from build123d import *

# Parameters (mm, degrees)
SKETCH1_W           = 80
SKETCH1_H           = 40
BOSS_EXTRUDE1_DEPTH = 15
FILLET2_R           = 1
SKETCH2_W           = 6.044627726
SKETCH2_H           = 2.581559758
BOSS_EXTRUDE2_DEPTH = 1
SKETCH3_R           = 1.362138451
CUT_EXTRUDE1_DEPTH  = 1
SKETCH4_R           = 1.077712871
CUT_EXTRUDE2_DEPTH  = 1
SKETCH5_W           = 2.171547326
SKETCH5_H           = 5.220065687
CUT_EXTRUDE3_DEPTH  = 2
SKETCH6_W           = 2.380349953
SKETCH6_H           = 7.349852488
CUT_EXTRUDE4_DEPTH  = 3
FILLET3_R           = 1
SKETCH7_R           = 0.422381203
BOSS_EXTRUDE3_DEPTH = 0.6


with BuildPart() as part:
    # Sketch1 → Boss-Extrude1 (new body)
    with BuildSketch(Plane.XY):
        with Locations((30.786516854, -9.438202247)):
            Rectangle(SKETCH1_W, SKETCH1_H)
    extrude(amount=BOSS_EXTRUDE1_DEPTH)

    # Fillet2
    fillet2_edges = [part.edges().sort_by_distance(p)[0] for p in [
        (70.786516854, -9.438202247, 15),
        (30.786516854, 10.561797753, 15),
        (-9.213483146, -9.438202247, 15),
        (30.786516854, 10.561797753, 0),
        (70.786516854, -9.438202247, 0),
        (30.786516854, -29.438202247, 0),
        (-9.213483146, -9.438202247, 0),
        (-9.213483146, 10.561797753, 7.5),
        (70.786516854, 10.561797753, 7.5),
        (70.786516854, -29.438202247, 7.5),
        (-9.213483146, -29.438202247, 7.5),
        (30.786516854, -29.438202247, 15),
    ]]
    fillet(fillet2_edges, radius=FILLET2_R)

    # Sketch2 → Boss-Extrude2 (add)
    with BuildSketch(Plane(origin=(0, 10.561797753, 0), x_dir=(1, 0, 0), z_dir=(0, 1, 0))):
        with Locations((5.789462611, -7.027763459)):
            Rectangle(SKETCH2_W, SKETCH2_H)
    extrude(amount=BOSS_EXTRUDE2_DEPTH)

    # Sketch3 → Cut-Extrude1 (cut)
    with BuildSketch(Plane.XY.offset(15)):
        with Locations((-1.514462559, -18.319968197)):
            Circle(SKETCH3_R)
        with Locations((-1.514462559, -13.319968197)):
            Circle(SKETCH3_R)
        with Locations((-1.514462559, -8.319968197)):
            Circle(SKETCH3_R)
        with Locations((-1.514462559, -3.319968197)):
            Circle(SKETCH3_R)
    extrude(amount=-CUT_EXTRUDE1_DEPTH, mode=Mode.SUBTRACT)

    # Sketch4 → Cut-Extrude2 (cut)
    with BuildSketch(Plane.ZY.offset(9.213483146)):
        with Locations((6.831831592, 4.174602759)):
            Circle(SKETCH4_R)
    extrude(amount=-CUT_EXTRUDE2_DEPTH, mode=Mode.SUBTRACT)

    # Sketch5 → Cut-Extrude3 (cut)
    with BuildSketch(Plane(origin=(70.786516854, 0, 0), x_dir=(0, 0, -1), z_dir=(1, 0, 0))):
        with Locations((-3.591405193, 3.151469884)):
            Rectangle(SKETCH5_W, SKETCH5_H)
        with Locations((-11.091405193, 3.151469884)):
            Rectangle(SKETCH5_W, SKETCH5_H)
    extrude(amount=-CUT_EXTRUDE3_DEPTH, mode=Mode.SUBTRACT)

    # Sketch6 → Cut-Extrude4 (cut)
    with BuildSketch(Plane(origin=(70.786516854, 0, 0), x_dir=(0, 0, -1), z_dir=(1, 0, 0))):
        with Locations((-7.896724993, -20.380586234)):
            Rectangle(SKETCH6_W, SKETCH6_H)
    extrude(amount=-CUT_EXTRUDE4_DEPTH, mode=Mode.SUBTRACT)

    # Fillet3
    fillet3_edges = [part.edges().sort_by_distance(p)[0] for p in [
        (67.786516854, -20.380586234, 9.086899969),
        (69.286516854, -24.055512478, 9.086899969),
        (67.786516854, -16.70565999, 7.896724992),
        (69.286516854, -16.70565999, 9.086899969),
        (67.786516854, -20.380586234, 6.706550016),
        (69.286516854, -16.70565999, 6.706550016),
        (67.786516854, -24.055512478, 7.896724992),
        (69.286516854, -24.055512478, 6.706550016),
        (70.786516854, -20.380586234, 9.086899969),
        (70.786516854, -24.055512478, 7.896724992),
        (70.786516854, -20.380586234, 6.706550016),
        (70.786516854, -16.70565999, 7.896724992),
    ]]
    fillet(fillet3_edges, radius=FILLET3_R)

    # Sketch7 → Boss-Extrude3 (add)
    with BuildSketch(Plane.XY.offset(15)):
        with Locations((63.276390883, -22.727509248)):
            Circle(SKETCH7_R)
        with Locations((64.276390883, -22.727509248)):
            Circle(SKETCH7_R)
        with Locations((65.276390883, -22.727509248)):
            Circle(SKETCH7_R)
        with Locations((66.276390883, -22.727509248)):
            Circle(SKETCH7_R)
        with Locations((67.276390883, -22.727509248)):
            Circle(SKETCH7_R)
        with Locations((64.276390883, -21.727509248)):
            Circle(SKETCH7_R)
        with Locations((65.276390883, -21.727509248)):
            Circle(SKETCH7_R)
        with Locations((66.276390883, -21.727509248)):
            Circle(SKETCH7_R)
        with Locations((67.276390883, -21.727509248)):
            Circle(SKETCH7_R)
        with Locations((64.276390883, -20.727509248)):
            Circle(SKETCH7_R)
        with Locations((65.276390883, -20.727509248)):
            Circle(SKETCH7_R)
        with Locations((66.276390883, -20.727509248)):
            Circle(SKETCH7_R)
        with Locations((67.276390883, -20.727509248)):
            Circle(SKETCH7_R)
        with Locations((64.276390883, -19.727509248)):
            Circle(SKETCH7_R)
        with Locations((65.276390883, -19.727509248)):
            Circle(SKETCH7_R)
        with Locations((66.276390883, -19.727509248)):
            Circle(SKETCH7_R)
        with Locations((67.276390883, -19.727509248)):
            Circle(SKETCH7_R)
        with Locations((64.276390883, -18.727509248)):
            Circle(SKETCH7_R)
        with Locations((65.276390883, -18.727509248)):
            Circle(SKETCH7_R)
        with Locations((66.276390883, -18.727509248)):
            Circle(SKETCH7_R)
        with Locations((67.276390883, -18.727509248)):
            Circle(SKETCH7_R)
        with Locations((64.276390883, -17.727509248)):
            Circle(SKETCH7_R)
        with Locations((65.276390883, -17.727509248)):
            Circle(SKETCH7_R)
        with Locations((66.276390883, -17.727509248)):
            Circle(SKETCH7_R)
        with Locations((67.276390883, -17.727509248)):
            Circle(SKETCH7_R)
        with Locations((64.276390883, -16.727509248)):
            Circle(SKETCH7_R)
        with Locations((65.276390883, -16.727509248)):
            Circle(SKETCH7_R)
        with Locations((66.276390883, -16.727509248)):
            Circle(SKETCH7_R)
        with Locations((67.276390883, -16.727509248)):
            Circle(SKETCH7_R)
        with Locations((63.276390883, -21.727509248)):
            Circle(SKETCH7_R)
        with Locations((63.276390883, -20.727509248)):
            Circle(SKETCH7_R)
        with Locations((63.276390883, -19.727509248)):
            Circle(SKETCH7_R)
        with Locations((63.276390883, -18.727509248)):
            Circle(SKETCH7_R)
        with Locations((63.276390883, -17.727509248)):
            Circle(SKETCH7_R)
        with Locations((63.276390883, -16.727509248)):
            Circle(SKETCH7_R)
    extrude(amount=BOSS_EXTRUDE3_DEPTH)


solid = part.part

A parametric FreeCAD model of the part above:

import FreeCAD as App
import Part
import Sketcher

V = App.Vector
Q = App.Units.Quantity


def edges_at(feature, points):
    """Names of the edges that pass closest to the given points."""
    edges = feature.Shape.Edges
    near = lambda p: min(range(len(edges)), key=lambda i: edges[i].distToShape(Part.Vertex(*p))[0])
    return sorted({f"Edge{near(p) + 1}" for p in points})

doc = App.newDocument("Part")
body = doc.addObject("PartDesign::Body", "Body")

# Sketch on XY plane
sketch1 = body.newObject("Sketcher::SketchObject", "Sketch")
sketch1.AttachmentSupport = (doc.getObject("XY_Plane"), [""])
sketch1.MapMode = "FlatFace"
sketch1.addGeometry([
    Part.LineSegment(V(-9, 11, 0), V(-9, -29, 0)),
    Part.LineSegment(V(-9, -29, 0), V(71, -29, 0)),
    Part.LineSegment(V(71, -29, 0), V(71, 11, 0)),
    Part.LineSegment(V(71, 11, 0), V(-9, 11, 0)),
], False)
sketch1.addConstraint([
    Sketcher.Constraint("Coincident", 0, 2, 1, 1),
    Sketcher.Constraint("Coincident", 1, 2, 2, 1),
    Sketcher.Constraint("Coincident", 2, 2, 3, 1),
    Sketcher.Constraint("Coincident", 3, 2, 0, 1),
    Sketcher.Constraint("Vertical", 0),
    Sketcher.Constraint("Horizontal", 1),
    Sketcher.Constraint("Vertical", 2),
    Sketcher.Constraint("Horizontal", 3),
    Sketcher.Constraint("DistanceX", 1, 1, 1, 2, Q("80 mm")),
    Sketcher.Constraint("DistanceY", 0, 2, 0, 1, Q("40 mm")),
    Sketcher.Constraint("DistanceX", 0, 2, -1, 1, Q("9.213483 mm")),
    Sketcher.Constraint("DistanceY", 0, 2, -1, 1, Q("29.438202 mm")),
])
pad1 = body.newObject("PartDesign::Pad", "Pad")
pad1.Profile = sketch1
pad1.Length = 15
doc.recompute()

fillet = body.newObject("PartDesign::Fillet", "Fillet")
fillet.Base = (pad1, ["Edge1"])
fillet.UseAllEdges = True
fillet.Radius = 1

# Sketch on XZ plane
sketch2 = body.newObject("Sketcher::SketchObject", "Sketch001")
sketch2.AttachmentSupport = (doc.getObject("XZ_Plane"), [""])
sketch2.MapMode = "FlatFace"
sketch2.AttachmentOffset = App.Placement(V(0, 0, -10.561798), App.Rotation())
sketch2.addGeometry([
    Part.LineSegment(V(2.8, 5.7, 0), V(2.8, 8.3, 0)),
    Part.LineSegment(V(2.8, 8.3, 0), V(8.8, 8.3, 0)),
    Part.LineSegment(V(8.8, 8.3, 0), V(8.8, 5.7, 0)),
    Part.LineSegment(V(8.8, 5.7, 0), V(2.8, 5.7, 0)),
], False)
sketch2.addConstraint([
    Sketcher.Constraint("Coincident", 0, 2, 1, 1),
    Sketcher.Constraint("Coincident", 1, 2, 2, 1),
    Sketcher.Constraint("Coincident", 2, 2, 3, 1),
    Sketcher.Constraint("Coincident", 3, 2, 0, 1),
    Sketcher.Constraint("Vertical", 0),
    Sketcher.Constraint("Horizontal", 1),
    Sketcher.Constraint("Vertical", 2),
    Sketcher.Constraint("Horizontal", 3),
    Sketcher.Constraint("DistanceY", 0, 1, 0, 2, Q("2.58156 mm")),
    Sketcher.Constraint("DistanceX", 1, 1, 1, 2, Q("6.044628 mm")),
    Sketcher.Constraint("DistanceX", -1, 1, 0, 2, Q("2.767149 mm")),
    Sketcher.Constraint("DistanceY", -1, 1, 0, 2, Q("8.318543 mm")),
])
pad2 = body.newObject("PartDesign::Pad", "Pad001")
pad2.Profile = sketch2
pad2.Length = 1
pad2.Reversed = True

# Sketch on XY plane
sketch3 = body.newObject("Sketcher::SketchObject", "Sketch002")
sketch3.AttachmentSupport = (doc.getObject("XY_Plane"), [""])
sketch3.MapMode = "FlatFace"
sketch3.AttachmentOffset = App.Placement(V(0, 0, 15), App.Rotation())
sketch3.addGeometry([
    Part.Circle(V(-1.5, -18.3, 0), V(0, 0, 1), 1.4),
    Part.Circle(V(-1.5, -13.3, 0), V(0, 0, 1), 1.4),
    Part.Circle(V(-1.5, -8.3, 0), V(0, 0, 1), 1.4),
    Part.Circle(V(-1.5, -3.3, 0), V(0, 0, 1), 1.4),
], False)
sketch3.addConstraint([
    Sketcher.Constraint("Equal", 0, 1),
    Sketcher.Constraint("Equal", 1, 2),
    Sketcher.Constraint("Equal", 2, 3),
    Sketcher.Constraint("Vertical", 0, 3, 1, 3),
    Sketcher.Constraint("Vertical", 1, 3, 2, 3),
    Sketcher.Constraint("Vertical", 2, 3, 3, 3),
    Sketcher.Constraint("DistanceY", 0, 3, 1, 3, Q("5 mm")),
    Sketcher.Constraint("DistanceY", 1, 3, 2, 3, Q("5 mm")),
    Sketcher.Constraint("DistanceY", 2, 3, 3, 3, Q("5 mm")),
    Sketcher.Constraint("Diameter", 0, Q("2.724277 mm")),
    Sketcher.Constraint("DistanceY", 0, 3, -1, 1, Q("18.319968 mm")),
    Sketcher.Constraint("DistanceX", 0, 3, -1, 1, Q("1.514463 mm")),
])
pocket1 = body.newObject("PartDesign::Pocket", "Pocket")
pocket1.Profile = sketch3
pocket1.Length = 1

# Sketch on YZ plane
sketch4 = body.newObject("Sketcher::SketchObject", "Sketch003")
sketch4.AttachmentSupport = (doc.getObject("YZ_Plane"), [""])
sketch4.MapMode = "FlatFace"
sketch4.AttachmentOffset = App.Placement(V(0, 0, -9.213483), App.Rotation())
sketch4.addGeometry(Part.Circle(V(4.2, 6.8, 0), V(0, 0, 1), 1.1), False)
sketch4.addConstraint([
    Sketcher.Constraint("Diameter", 0, Q("2.155426 mm")),
    Sketcher.Constraint("DistanceY", -1, 1, 0, 3, Q("6.831832 mm")),
    Sketcher.Constraint("DistanceX", -1, 1, 0, 3, Q("4.174603 mm")),
])
pocket2 = body.newObject("PartDesign::Pocket", "Pocket001")
pocket2.Profile = sketch4
pocket2.Length = 1
pocket2.Reversed = True

# Sketch on YZ plane
sketch5 = body.newObject("Sketcher::SketchObject", "Sketch004")
sketch5.AttachmentSupport = (doc.getObject("YZ_Plane"), [""])
sketch5.MapMode = "FlatFace"
sketch5.AttachmentOffset = App.Placement(V(0, 0, 70.786517), App.Rotation())
sketch5.addGeometry([
    Part.LineSegment(V(5.8, 4.7, 0), V(0.5, 4.7, 0)),  # 0
    Part.LineSegment(V(0.5, 4.7, 0), V(0.5, 2.5, 0)),  # 1
    Part.LineSegment(V(0.5, 2.5, 0), V(5.8, 2.5, 0)),  # 2
    Part.LineSegment(V(5.8, 2.5, 0), V(5.8, 4.7, 0)),  # 3
    Part.LineSegment(V(5.8, 12.2, 0), V(0.5, 12.2, 0)),  # 4
    Part.LineSegment(V(0.5, 12.2, 0), V(0.5, 10, 0)),  # 5
    Part.LineSegment(V(0.5, 10, 0), V(5.8, 10, 0)),  # 6
    Part.LineSegment(V(5.8, 10, 0), V(5.8, 12.2, 0)),  # 7
], False)
sketch5.addConstraint([
    Sketcher.Constraint("Coincident", 0, 2, 1, 1),
    Sketcher.Constraint("Coincident", 1, 2, 2, 1),
    Sketcher.Constraint("Coincident", 2, 2, 3, 1),
    Sketcher.Constraint("Coincident", 3, 2, 0, 1),
    Sketcher.Constraint("Coincident", 4, 2, 5, 1),
    Sketcher.Constraint("Coincident", 5, 2, 6, 1),
    Sketcher.Constraint("Coincident", 6, 2, 7, 1),
    Sketcher.Constraint("Coincident", 7, 2, 4, 1),
    Sketcher.Constraint("Horizontal", 0),
    Sketcher.Constraint("Vertical", 1),
    Sketcher.Constraint("Horizontal", 2),
    Sketcher.Constraint("Vertical", 3),
    Sketcher.Constraint("Horizontal", 4),
    Sketcher.Constraint("Vertical", 5),
    Sketcher.Constraint("Horizontal", 6),
    Sketcher.Constraint("Vertical", 7),
    Sketcher.Constraint("Vertical", 1, 2, 4, 2),
    Sketcher.Constraint("Vertical", 3, 2, 6, 2),
    Sketcher.Constraint("Equal", 3, 5),
    Sketcher.Constraint("DistanceY", 0, 2, 4, 2, Q("7.5 mm")),
    Sketcher.Constraint("DistanceX", 0, 2, 0, 1, Q("5.220066 mm")),
    Sketcher.Constraint("DistanceY", 1, 2, 1, 1, Q("2.171547 mm")),
    Sketcher.Constraint("DistanceY", -1, 1, 0, 2, Q("4.677179 mm")),
    Sketcher.Constraint("DistanceX", -1, 1, 0, 2, Q("0.541437 mm")),
])
pocket3 = body.newObject("PartDesign::Pocket", "Pocket002")
pocket3.Profile = sketch5
pocket3.Length = 2

# Sketch on YZ plane
sketch6 = body.newObject("Sketcher::SketchObject", "Sketch005")
sketch6.AttachmentSupport = (doc.getObject("YZ_Plane"), [""])
sketch6.MapMode = "FlatFace"
sketch6.AttachmentOffset = App.Placement(V(0, 0, 70.786517), App.Rotation())
sketch6.addGeometry([
    Part.LineSegment(V(-16.7, 9.1, 0), V(-24.1, 9.1, 0)),
    Part.LineSegment(V(-24.1, 9.1, 0), V(-24.1, 6.7, 0)),
    Part.LineSegment(V(-24.1, 6.7, 0), V(-16.7, 6.7, 0)),
    Part.LineSegment(V(-16.7, 6.7, 0), V(-16.7, 9.1, 0)),
], False)
sketch6.addConstraint([
    Sketcher.Constraint("Coincident", 0, 2, 1, 1),
    Sketcher.Constraint("Coincident", 1, 2, 2, 1),
    Sketcher.Constraint("Coincident", 2, 2, 3, 1),
    Sketcher.Constraint("Coincident", 3, 2, 0, 1),
    Sketcher.Constraint("Horizontal", 0),
    Sketcher.Constraint("Vertical", 1),
    Sketcher.Constraint("Horizontal", 2),
    Sketcher.Constraint("Vertical", 3),
    Sketcher.Constraint("DistanceY", 1, 2, 1, 1, Q("2.38035 mm")),
    Sketcher.Constraint("DistanceY", -1, 1, 0, 2, Q("9.0869 mm")),
    Sketcher.Constraint("DistanceX", 0, 2, 0, 1, Q("7.349852 mm")),
    Sketcher.Constraint("DistanceX", 2, 2, -1, 1, Q("16.70566 mm")),
])
pocket4 = body.newObject("PartDesign::Pocket", "Pocket003")
pocket4.Profile = sketch6
pocket4.Length = 3
doc.recompute()

fillet2 = body.newObject("PartDesign::Fillet", "Fillet001")
fillet2.Base = (pocket4, edges_at(pocket4, [
    (67.787, -20.381, 9.087),
    (69.287, -24.056, 9.087),
    (67.787, -16.706, 7.897),
    (69.287, -16.706, 9.087),
    (67.787, -20.381, 6.707),
    (69.287, -16.706, 6.707),
    (67.787, -24.056, 7.897),
    (69.287, -24.056, 6.707),
    (70.787, -20.381, 9.087),
    (70.787, -24.056, 7.897),
    (70.787, -20.381, 6.707),
    (70.787, -16.706, 7.897),
]))
fillet2.Radius = 1

# Sketch on XY plane
sketch7 = body.newObject("Sketcher::SketchObject", "Sketch006")
sketch7.AttachmentSupport = (doc.getObject("XY_Plane"), [""])
sketch7.MapMode = "FlatFace"
sketch7.AttachmentOffset = App.Placement(V(0, 0, 15), App.Rotation())
sketch7.addGeometry([
    Part.Circle(V(63.28, -22.73, 0), V(0, 0, 1), 0.42),  # 0
    Part.Circle(V(64.28, -22.73, 0), V(0, 0, 1), 0.42),  # 1
    Part.Circle(V(65.28, -22.73, 0), V(0, 0, 1), 0.42),  # 2
    Part.Circle(V(66.28, -22.73, 0), V(0, 0, 1), 0.42),  # 3
    Part.Circle(V(67.28, -22.73, 0), V(0, 0, 1), 0.42),  # 4
    Part.Circle(V(64.28, -21.73, 0), V(0, 0, 1), 0.42),  # 5
    Part.Circle(V(65.28, -21.73, 0), V(0, 0, 1), 0.42),  # 6
    Part.Circle(V(66.28, -21.73, 0), V(0, 0, 1), 0.42),  # 7
    Part.Circle(V(67.28, -21.73, 0), V(0, 0, 1), 0.42),  # 8
    Part.Circle(V(64.28, -20.73, 0), V(0, 0, 1), 0.42),  # 9
    Part.Circle(V(65.28, -20.73, 0), V(0, 0, 1), 0.42),  # 10
    Part.Circle(V(66.28, -20.73, 0), V(0, 0, 1), 0.42),  # 11
    Part.Circle(V(67.28, -20.73, 0), V(0, 0, 1), 0.42),  # 12
    Part.Circle(V(64.28, -19.73, 0), V(0, 0, 1), 0.42),  # 13
    Part.Circle(V(65.28, -19.73, 0), V(0, 0, 1), 0.42),  # 14
    Part.Circle(V(66.28, -19.73, 0), V(0, 0, 1), 0.42),  # 15
    Part.Circle(V(67.28, -19.73, 0), V(0, 0, 1), 0.42),  # 16
    Part.Circle(V(64.28, -18.73, 0), V(0, 0, 1), 0.42),  # 17
    Part.Circle(V(65.28, -18.73, 0), V(0, 0, 1), 0.42),  # 18
    Part.Circle(V(66.28, -18.73, 0), V(0, 0, 1), 0.42),  # 19
    Part.Circle(V(67.28, -18.73, 0), V(0, 0, 1), 0.42),  # 20
    Part.Circle(V(64.28, -17.73, 0), V(0, 0, 1), 0.42),  # 21
    Part.Circle(V(65.28, -17.73, 0), V(0, 0, 1), 0.42),  # 22
    Part.Circle(V(66.28, -17.73, 0), V(0, 0, 1), 0.42),  # 23
    Part.Circle(V(67.28, -17.73, 0), V(0, 0, 1), 0.42),  # 24
    Part.Circle(V(64.28, -16.73, 0), V(0, 0, 1), 0.42),  # 25
    Part.Circle(V(65.28, -16.73, 0), V(0, 0, 1), 0.42),  # 26
    Part.Circle(V(66.28, -16.73, 0), V(0, 0, 1), 0.42),  # 27
    Part.Circle(V(67.28, -16.73, 0), V(0, 0, 1), 0.42),  # 28
    Part.Circle(V(63.28, -21.73, 0), V(0, 0, 1), 0.42),  # 29
    Part.Circle(V(63.28, -20.73, 0), V(0, 0, 1), 0.42),  # 30
    Part.Circle(V(63.28, -19.73, 0), V(0, 0, 1), 0.42),  # 31
    Part.Circle(V(63.28, -18.73, 0), V(0, 0, 1), 0.42),  # 32
    Part.Circle(V(63.28, -17.73, 0), V(0, 0, 1), 0.42),  # 33
    Part.Circle(V(63.28, -16.73, 0), V(0, 0, 1), 0.42),  # 34
], False)
sketch7.addConstraint([
    Sketcher.Constraint("Equal", 0, 1),
    Sketcher.Constraint("Equal", 1, 2),
    Sketcher.Constraint("Equal", 2, 3),
    Sketcher.Constraint("Equal", 3, 4),
    Sketcher.Constraint("Equal", 4, 5),
    Sketcher.Constraint("Equal", 5, 6),
    Sketcher.Constraint("Equal", 6, 7),
    Sketcher.Constraint("Equal", 7, 8),
    Sketcher.Constraint("Equal", 8, 9),
    Sketcher.Constraint("Equal", 9, 10),
    Sketcher.Constraint("Equal", 10, 11),
    Sketcher.Constraint("Equal", 11, 12),
    Sketcher.Constraint("Equal", 12, 13),
    Sketcher.Constraint("Equal", 13, 14),
    Sketcher.Constraint("Equal", 14, 15),
    Sketcher.Constraint("Equal", 15, 16),
    Sketcher.Constraint("Equal", 16, 17),
    Sketcher.Constraint("Equal", 17, 18),
    Sketcher.Constraint("Equal", 18, 19),
    Sketcher.Constraint("Equal", 19, 20),
    Sketcher.Constraint("Equal", 20, 21),
    Sketcher.Constraint("Equal", 21, 22),
    Sketcher.Constraint("Equal", 22, 23),
    Sketcher.Constraint("Equal", 23, 24),
    Sketcher.Constraint("Equal", 24, 25),
    Sketcher.Constraint("Equal", 25, 26),
    Sketcher.Constraint("Equal", 26, 27),
    Sketcher.Constraint("Equal", 27, 28),
    Sketcher.Constraint("Equal", 28, 29),
    Sketcher.Constraint("Equal", 29, 30),
    Sketcher.Constraint("Equal", 30, 31),
    Sketcher.Constraint("Equal", 31, 32),
    Sketcher.Constraint("Equal", 32, 33),
    Sketcher.Constraint("Equal", 33, 34),
    Sketcher.Constraint("Horizontal", 0, 3, 1, 3),
    Sketcher.Constraint("Horizontal", 1, 3, 2, 3),
    Sketcher.Constraint("Horizontal", 2, 3, 3, 3),
    Sketcher.Constraint("Horizontal", 3, 3, 4, 3),
    Sketcher.Constraint("Horizontal", 5, 3, 6, 3),
    Sketcher.Constraint("Horizontal", 6, 3, 7, 3),
    Sketcher.Constraint("Horizontal", 7, 3, 8, 3),
    Sketcher.Constraint("Horizontal", 9, 3, 10, 3),
    Sketcher.Constraint("Horizontal", 10, 3, 11, 3),
    Sketcher.Constraint("Horizontal", 11, 3, 12, 3),
    Sketcher.Constraint("Horizontal", 13, 3, 14, 3),
    Sketcher.Constraint("Horizontal", 14, 3, 15, 3),
    Sketcher.Constraint("Horizontal", 15, 3, 16, 3),
    Sketcher.Constraint("Horizontal", 17, 3, 18, 3),
    Sketcher.Constraint("Horizontal", 18, 3, 19, 3),
    Sketcher.Constraint("Horizontal", 19, 3, 20, 3),
    Sketcher.Constraint("Horizontal", 21, 3, 22, 3),
    Sketcher.Constraint("Horizontal", 22, 3, 23, 3),
    Sketcher.Constraint("Horizontal", 23, 3, 24, 3),
    Sketcher.Constraint("Horizontal", 25, 3, 26, 3),
    Sketcher.Constraint("Horizontal", 26, 3, 27, 3),
    Sketcher.Constraint("Horizontal", 27, 3, 28, 3),
    Sketcher.Constraint("Horizontal", 8, 3, 29, 3),
    Sketcher.Constraint("Horizontal", 12, 3, 30, 3),
    Sketcher.Constraint("Horizontal", 16, 3, 31, 3),
    Sketcher.Constraint("Horizontal", 20, 3, 32, 3),
    Sketcher.Constraint("Horizontal", 24, 3, 33, 3),
    Sketcher.Constraint("Horizontal", 28, 3, 34, 3),
    Sketcher.Constraint("Vertical", 1, 3, 5, 3),
    Sketcher.Constraint("Vertical", 2, 3, 6, 3),
    Sketcher.Constraint("Vertical", 3, 3, 7, 3),
    Sketcher.Constraint("Vertical", 4, 3, 8, 3),
    Sketcher.Constraint("Vertical", 5, 3, 9, 3),
    Sketcher.Constraint("Vertical", 6, 3, 10, 3),
    Sketcher.Constraint("Vertical", 7, 3, 11, 3),
    Sketcher.Constraint("Vertical", 8, 3, 12, 3),
    Sketcher.Constraint("Vertical", 9, 3, 13, 3),
    Sketcher.Constraint("Vertical", 10, 3, 14, 3),
    Sketcher.Constraint("Vertical", 11, 3, 15, 3),
    Sketcher.Constraint("Vertical", 12, 3, 16, 3),
    Sketcher.Constraint("Vertical", 13, 3, 17, 3),
    Sketcher.Constraint("Vertical", 14, 3, 18, 3),
    Sketcher.Constraint("Vertical", 15, 3, 19, 3),
    Sketcher.Constraint("Vertical", 16, 3, 20, 3),
    Sketcher.Constraint("Vertical", 17, 3, 21, 3),
    Sketcher.Constraint("Vertical", 18, 3, 22, 3),
    Sketcher.Constraint("Vertical", 19, 3, 23, 3),
    Sketcher.Constraint("Vertical", 20, 3, 24, 3),
    Sketcher.Constraint("Vertical", 21, 3, 25, 3),
    Sketcher.Constraint("Vertical", 22, 3, 26, 3),
    Sketcher.Constraint("Vertical", 23, 3, 27, 3),
    Sketcher.Constraint("Vertical", 24, 3, 28, 3),
    Sketcher.Constraint("Vertical", 0, 3, 29, 3),
    Sketcher.Constraint("Vertical", 29, 3, 30, 3),
    Sketcher.Constraint("Vertical", 30, 3, 31, 3),
    Sketcher.Constraint("Vertical", 31, 3, 32, 3),
    Sketcher.Constraint("Vertical", 32, 3, 33, 3),
    Sketcher.Constraint("Vertical", 33, 3, 34, 3),
    Sketcher.Constraint("DistanceX", 0, 3, 1, 3, Q("1 mm")),
    Sketcher.Constraint("DistanceX", 1, 3, 2, 3, Q("1 mm")),
    Sketcher.Constraint("DistanceX", 2, 3, 3, 3, Q("1 mm")),
    Sketcher.Constraint("DistanceX", 3, 3, 4, 3, Q("1 mm")),
    Sketcher.Constraint("DistanceY", 1, 3, 5, 3, Q("1 mm")),
    Sketcher.Constraint("DistanceY", 5, 3, 9, 3, Q("1 mm")),
    Sketcher.Constraint("DistanceY", 9, 3, 13, 3, Q("1 mm")),
    Sketcher.Constraint("DistanceY", 13, 3, 17, 3, Q("1 mm")),
    Sketcher.Constraint("DistanceY", 17, 3, 21, 3, Q("1 mm")),
    Sketcher.Constraint("DistanceY", 21, 3, 25, 3, Q("1 mm")),
    Sketcher.Constraint("Diameter", 0, Q("0.844762 mm")),
    Sketcher.Constraint("DistanceX", -1, 1, 0, 3, Q("63.276391 mm")),
    Sketcher.Constraint("DistanceY", 0, 3, -1, 1, Q("22.727509 mm")),
])
pad3 = body.newObject("PartDesign::Pad", "Pad002")
pad3.Profile = sketch7
pad3.Length = 0.6

doc.recompute()
